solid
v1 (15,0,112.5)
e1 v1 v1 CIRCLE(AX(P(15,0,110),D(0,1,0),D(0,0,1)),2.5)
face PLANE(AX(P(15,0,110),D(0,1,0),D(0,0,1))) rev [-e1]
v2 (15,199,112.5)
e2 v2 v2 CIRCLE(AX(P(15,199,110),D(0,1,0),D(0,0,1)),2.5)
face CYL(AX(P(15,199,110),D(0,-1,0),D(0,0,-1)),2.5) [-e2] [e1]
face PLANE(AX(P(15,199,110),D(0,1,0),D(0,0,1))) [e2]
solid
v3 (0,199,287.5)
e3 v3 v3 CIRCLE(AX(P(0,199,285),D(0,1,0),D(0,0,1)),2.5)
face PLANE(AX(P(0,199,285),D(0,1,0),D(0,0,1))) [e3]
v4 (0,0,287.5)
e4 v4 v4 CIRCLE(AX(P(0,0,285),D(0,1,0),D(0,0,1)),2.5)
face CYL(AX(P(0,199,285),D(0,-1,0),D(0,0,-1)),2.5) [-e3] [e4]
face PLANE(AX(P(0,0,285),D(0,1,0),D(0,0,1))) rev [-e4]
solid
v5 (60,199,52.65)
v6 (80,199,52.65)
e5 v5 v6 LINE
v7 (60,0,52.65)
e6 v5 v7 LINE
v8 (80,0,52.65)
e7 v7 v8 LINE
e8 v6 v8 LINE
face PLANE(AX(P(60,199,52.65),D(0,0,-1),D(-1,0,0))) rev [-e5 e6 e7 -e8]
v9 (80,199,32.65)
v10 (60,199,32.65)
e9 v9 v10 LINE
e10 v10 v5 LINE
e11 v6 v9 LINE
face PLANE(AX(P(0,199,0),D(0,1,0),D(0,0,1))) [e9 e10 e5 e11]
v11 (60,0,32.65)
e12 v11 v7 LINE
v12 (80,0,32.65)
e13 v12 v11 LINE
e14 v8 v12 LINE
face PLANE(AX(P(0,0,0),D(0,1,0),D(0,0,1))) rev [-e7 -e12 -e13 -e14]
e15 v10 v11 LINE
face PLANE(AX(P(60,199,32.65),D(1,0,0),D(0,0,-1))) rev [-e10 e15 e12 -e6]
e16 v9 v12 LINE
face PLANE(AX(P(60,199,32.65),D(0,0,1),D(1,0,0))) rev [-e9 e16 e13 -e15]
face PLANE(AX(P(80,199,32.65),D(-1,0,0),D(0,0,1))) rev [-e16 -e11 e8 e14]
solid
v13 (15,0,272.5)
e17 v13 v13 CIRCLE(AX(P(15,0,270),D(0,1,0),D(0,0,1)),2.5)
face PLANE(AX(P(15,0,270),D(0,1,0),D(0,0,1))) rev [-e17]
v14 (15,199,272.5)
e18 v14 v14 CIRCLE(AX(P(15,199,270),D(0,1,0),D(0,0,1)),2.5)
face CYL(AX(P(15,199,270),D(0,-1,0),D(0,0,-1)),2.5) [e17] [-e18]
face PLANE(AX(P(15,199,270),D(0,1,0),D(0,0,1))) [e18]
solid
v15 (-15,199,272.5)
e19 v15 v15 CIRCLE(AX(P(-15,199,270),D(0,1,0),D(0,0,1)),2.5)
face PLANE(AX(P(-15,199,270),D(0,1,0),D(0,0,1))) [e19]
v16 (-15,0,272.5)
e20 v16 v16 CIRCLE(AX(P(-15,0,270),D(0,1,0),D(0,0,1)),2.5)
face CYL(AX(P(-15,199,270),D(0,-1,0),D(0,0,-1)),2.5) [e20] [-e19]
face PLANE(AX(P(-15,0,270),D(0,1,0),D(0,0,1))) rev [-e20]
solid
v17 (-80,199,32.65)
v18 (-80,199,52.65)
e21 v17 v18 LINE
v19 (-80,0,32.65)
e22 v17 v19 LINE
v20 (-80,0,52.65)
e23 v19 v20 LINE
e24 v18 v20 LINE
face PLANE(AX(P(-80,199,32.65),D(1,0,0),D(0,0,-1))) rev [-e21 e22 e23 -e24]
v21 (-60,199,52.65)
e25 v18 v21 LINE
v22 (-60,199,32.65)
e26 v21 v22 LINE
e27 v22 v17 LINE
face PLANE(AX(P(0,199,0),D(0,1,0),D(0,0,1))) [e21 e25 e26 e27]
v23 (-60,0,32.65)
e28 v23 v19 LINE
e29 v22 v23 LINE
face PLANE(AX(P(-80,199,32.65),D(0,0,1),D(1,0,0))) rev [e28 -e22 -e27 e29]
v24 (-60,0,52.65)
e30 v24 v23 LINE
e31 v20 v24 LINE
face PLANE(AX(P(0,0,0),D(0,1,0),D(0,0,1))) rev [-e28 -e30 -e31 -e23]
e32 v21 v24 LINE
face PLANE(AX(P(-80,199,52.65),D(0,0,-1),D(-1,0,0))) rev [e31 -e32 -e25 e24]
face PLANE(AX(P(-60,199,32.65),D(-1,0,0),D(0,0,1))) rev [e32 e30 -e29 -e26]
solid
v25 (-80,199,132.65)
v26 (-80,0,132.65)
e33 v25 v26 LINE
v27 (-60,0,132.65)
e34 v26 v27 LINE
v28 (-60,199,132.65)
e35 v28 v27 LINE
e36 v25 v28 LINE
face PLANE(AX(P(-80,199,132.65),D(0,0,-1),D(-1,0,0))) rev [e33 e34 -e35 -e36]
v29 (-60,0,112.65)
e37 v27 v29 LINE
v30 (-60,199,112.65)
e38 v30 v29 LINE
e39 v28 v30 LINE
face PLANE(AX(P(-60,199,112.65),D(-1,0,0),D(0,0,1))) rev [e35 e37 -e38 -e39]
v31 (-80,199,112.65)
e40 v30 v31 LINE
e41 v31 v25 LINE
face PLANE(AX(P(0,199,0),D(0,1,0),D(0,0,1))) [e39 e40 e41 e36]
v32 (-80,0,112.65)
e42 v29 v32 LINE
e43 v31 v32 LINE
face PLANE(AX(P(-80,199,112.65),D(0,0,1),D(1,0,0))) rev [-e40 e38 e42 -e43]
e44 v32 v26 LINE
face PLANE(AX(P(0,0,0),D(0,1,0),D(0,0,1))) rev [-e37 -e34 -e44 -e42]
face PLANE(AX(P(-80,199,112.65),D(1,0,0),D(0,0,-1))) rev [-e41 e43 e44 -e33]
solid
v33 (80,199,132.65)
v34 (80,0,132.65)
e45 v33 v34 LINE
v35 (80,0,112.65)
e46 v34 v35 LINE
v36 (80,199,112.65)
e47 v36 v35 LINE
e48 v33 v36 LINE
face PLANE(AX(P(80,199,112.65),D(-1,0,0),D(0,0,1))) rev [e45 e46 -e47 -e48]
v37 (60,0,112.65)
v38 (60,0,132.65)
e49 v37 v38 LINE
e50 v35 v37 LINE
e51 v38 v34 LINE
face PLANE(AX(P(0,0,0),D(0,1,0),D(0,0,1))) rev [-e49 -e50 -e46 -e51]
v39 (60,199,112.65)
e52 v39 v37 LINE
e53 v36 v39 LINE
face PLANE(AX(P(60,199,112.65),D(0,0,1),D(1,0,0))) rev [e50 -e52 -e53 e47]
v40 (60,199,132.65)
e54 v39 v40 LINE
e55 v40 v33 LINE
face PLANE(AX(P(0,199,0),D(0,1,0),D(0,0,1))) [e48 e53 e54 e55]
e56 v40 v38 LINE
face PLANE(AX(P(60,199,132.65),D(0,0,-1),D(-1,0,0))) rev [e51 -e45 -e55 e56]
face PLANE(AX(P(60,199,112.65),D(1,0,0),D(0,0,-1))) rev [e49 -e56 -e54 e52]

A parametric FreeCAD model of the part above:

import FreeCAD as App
import Part
import Sketcher

doc = App.newDocument("Part")
body = doc.addObject("PartDesign::Body", "Body")

sketch1 = body.newObject("Sketcher::SketchObject", "Sketch")
sketch1.AttachmentSupport = (doc.getObject("XZ_Plane"), [""])
sketch1.MapMode = "FlatFace"
sketch1.addGeometry(Part.Circle(App.Vector(15, 110, 0), App.Vector(0, 0, 1), 2.5), False)
sketch1.addConstraint([
    Sketcher.Constraint("Diameter", 0, 5.0),
    Sketcher.Constraint("DistanceX", -1, 1, 0, 3, 15.0),
    Sketcher.Constraint("DistanceY", -1, 1, 0, 3, 110.0),
])
pad1 = body.newObject("PartDesign::Pad", "Pad")
pad1.Profile = sketch1
pad1.Length = 199
pad1.Reversed = True
body2 = doc.addObject("PartDesign::Body", "Body001")

sketch2 = body2.newObject("Sketcher::SketchObject", "Sketch001")
sketch2.AttachmentSupport = (doc.getObject("XZ_Plane001"), [""])
sketch2.MapMode = "FlatFace"
sketch2.addGeometry(Part.Circle(App.Vector(-15, 270, 0), App.Vector(0, 0, 1), 2.5), False)
sketch2.addConstraint([
    Sketcher.Constraint("Diameter", 0, 5.0),
    Sketcher.Constraint("DistanceX", 0, 3, -1, 1, 15.0),
    Sketcher.Constraint("DistanceY", -1, 1, 0, 3, 270.0),
])
pad2 = body2.newObject("PartDesign::Pad", "Pad001")
pad2.Profile = sketch2
pad2.Length = 199
pad2.Reversed = True
body3 = doc.addObject("PartDesign::Body", "Body002")

sketch3 = body3.newObject("Sketcher::SketchObject", "Sketch002")
sketch3.AttachmentSupport = (doc.getObject("XZ_Plane002"), [""])
sketch3.MapMode = "FlatFace"
sketch3.addGeometry(Part.Circle(App.Vector(0, 285, 0), App.Vector(0, 0, 1), 2.5), False)
sketch3.addConstraint([
    Sketcher.Constraint("PointOnObject", 0, 3, -2),
    Sketcher.Constraint("Diameter", 0, 5.0),
    Sketcher.Constraint("DistanceY", -1, 1, 0, 3, 285.0),
])
pad3 = body3.newObject("PartDesign::Pad", "Pad002")
pad3.Profile = sketch3
pad3.Length = 199
pad3.Reversed = True
body4 = doc.addObject("PartDesign::Body", "Body003")

sketch4 = body4.newObject("Sketcher::SketchObject", "Sketch003")
sketch4.AttachmentSupport = (doc.getObject("XZ_Plane003"), [""])
sketch4.MapMode = "FlatFace"
sketch4.addGeometry(Part.Circle(App.Vector(15, 270, 0), App.Vector(0, 0, 1), 2.5), False)
sketch4.addConstraint([
    Sketcher.Constraint("Diameter", 0, 5.0),
    Sketcher.Constraint("DistanceX", -1, 1, 0, 3, 15.0),
    Sketcher.Constraint("DistanceY", -1, 1, 0, 3, 270.0),
])
pad4 = body4.newObject("PartDesign::Pad", "Pad003")
pad4.Profile = sketch4
pad4.Length = 199
pad4.Reversed = True
body5 = doc.addObject("PartDesign::Body", "Body004")

sketch5 = body5.newObject("Sketcher::SketchObject", "Sketch004")
sketch5.AttachmentSupport = (doc.getObject("XZ_Plane004"), [""])
sketch5.MapMode = "FlatFace"
sketch5.addGeometry([
    Part.LineSegment(App.Vector(-80, 32.65, 0), App.Vector(-80, 52.65, 0)),
    Part.LineSegment(App.Vector(-80, 52.65, 0), App.Vector(-60, 52.65, 0)),
    Part.LineSegment(App.Vector(-60, 52.65, 0), App.Vector(-60, 32.65, 0)),
    Part.LineSegment(App.Vector(-60, 32.65, 0), App.Vector(-80, 32.65, 0)),
], False)
sketch5.addConstraint([
    Sketcher.Constraint("Coincident", 0, 2, 1, 1),
    Sketcher.Constraint("Coincident", 1, 2, 2, 1),
    Sketcher.Constraint("Coincident", 2, 2, 3, 1),
    Sketcher.Constraint("Coincident", 3, 2, 0, 1),
    Sketcher.Constraint("Vertical", 0),
    Sketcher.Constraint("Horizontal", 1),
    Sketcher.Constraint("Vertical", 2),
    Sketcher.Constraint("Horizontal", 3),
    Sketcher.Constraint("Equal", 3, 0),
    Sketcher.Constraint("DistanceX", 1, 1, 1, 2, 20.0),
    Sketcher.Constraint("DistanceX", 0, 2, -1, 1, 80.0),
    Sketcher.Constraint("DistanceY", -1, 1, 0, 2, 52.65),
])
pad5 = body5.newObject("PartDesign::Pad", "Pad004")
pad5.Profile = sketch5
pad5.Length = 199
pad5.Reversed = True
body6 = doc.addObject("PartDesign::Body", "Body005")

sketch6 = body6.newObject("Sketcher::SketchObject", "Sketch005")
sketch6.AttachmentSupport = (doc.getObject("XZ_Plane005"), [""])
sketch6.MapMode = "FlatFace"
sketch6.addGeometry([
    Part.LineSegment(App.Vector(60, 32.65, 0), App.Vector(60, 52.65, 0)),
    Part.LineSegment(App.Vector(60, 52.65, 0), App.Vector(80, 52.65, 0)),
    Part.LineSegment(App.Vector(80, 52.65, 0), App.Vector(80, 32.65, 0)),
    Part.LineSegment(App.Vector(80, 32.65, 0), App.Vector(60, 32.65, 0)),
], False)
sketch6.addConstraint([
    Sketcher.Constraint("Coincident", 0, 2, 1, 1),
    Sketcher.Constraint("Coincident", 1, 2, 2, 1),
    Sketcher.Constraint("Coincident", 2, 2, 3, 1),
    Sketcher.Constraint("Coincident", 3, 2, 0, 1),
    Sketcher.Constraint("Vertical", 0),
    Sketcher.Constraint("Horizontal", 1),
    Sketcher.Constraint("Vertical", 2),
    Sketcher.Constraint("Horizontal", 3),
    Sketcher.Constraint("Equal", 3, 0),
    Sketcher.Constraint("DistanceX", 1, 1, 1, 2, 20.0),
    Sketcher.Constraint("DistanceX", -1, 1, 0, 2, 60.0),
    Sketcher.Constraint("DistanceY", -1, 1, 0, 2, 52.65),
])
pad6 = body6.newObject("PartDesign::Pad", "Pad005")
pad6.Profile = sketch6
pad6.Length = 199
pad6.Reversed = True
body7 = doc.addObject("PartDesign::Body", "Body006")

sketch7 = body7.newObject("Sketcher::SketchObject", "Sketch006")
sketch7.AttachmentSupport = (doc.getObject("XZ_Plane006"), [""])
sketch7.MapMode = "FlatFace"
sketch7.addGeometry([
    Part.LineSegment(App.Vector(60, 112.65, 0), App.Vector(60, 132.65, 0)),
    Part.LineSegment(App.Vector(60, 132.65, 0), App.Vector(80, 132.65, 0)),
    Part.LineSegment(App.Vector(80, 132.65, 0), App.Vector(80, 112.65, 0)),
    Part.LineSegment(App.Vector(80, 112.65, 0), App.Vector(60, 112.65, 0)),
], False)
sketch7.addConstraint([
    Sketcher.Constraint("Coincident", 0, 2, 1, 1),
    Sketcher.Constraint("Coincident", 1, 2, 2, 1),
    Sketcher.Constraint("Coincident", 2, 2, 3, 1),
    Sketcher.Constraint("Coincident", 3, 2, 0, 1),
    Sketcher.Constraint("Vertical", 0),
    Sketcher.Constraint("Horizontal", 1),
    Sketcher.Constraint("Vertical", 2),
    Sketcher.Constraint("Horizontal", 3),
    Sketcher.Constraint("Equal", 3, 0),
    Sketcher.Constraint("DistanceX", 1, 1, 1, 2, 20.0),
    Sketcher.Constraint("DistanceX", -1, 1, 0, 2, 60.0),
    Sketcher.Constraint("DistanceY", -1, 1, 0, 2, 132.65),
])
pad7 = body7.newObject("PartDesign::Pad", "Pad006")
pad7.Profile = sketch7
pad7.Length = 199
pad7.Reversed = True
body8 = doc.addObject("PartDesign::Body", "Body007")

sketch8 = body8.newObject("Sketcher::SketchObject", "Sketch007")
sketch8.AttachmentSupport = (doc.getObject("XZ_Plane007"), [""])
sketch8.MapMode = "FlatFace"
sketch8.addGeometry([
    Part.LineSegment(App.Vector(-80, 112.65, 0), App.Vector(-80, 132.65, 0)),
    Part.LineSegment(App.Vector(-80, 132.65, 0), App.Vector(-60, 132.65, 0)),
    Part.LineSegment(App.Vector(-60, 132.65, 0), App.Vector(-60, 112.65, 0)),
    Part.LineSegment(App.Vector(-60, 112.65, 0), App.Vector(-80, 112.65, 0)),
], False)
sketch8.addConstraint([
    Sketcher.Constraint("Coincident", 0, 2, 1, 1),
    Sketcher.Constraint("Coincident", 1, 2, 2, 1),
    Sketcher.Constraint("Coincident", 2, 2, 3, 1),
    Sketcher.Constraint("Coincident", 3, 2, 0, 1),
    Sketcher.Constraint("Vertical", 0),
    Sketcher.Constraint("Horizontal", 1),
    Sketcher.Constraint("Vertical", 2),
    Sketcher.Constraint("Horizontal", 3),
    Sketcher.Constraint("Equal", 3, 0),
    Sketcher.Constraint("DistanceX", 1, 1, 1, 2, 20.0),
    Sketcher.Constraint("DistanceX", 0, 2, -1, 1, 80.0),
    Sketcher.Constraint("DistanceY", -1, 1, 0, 2, 132.65),
])
pad8 = body8.newObject("PartDesign::Pad", "Pad007")
pad8.Profile = sketch8
pad8.Length = 199
pad8.Reversed = True

doc.recompute()
